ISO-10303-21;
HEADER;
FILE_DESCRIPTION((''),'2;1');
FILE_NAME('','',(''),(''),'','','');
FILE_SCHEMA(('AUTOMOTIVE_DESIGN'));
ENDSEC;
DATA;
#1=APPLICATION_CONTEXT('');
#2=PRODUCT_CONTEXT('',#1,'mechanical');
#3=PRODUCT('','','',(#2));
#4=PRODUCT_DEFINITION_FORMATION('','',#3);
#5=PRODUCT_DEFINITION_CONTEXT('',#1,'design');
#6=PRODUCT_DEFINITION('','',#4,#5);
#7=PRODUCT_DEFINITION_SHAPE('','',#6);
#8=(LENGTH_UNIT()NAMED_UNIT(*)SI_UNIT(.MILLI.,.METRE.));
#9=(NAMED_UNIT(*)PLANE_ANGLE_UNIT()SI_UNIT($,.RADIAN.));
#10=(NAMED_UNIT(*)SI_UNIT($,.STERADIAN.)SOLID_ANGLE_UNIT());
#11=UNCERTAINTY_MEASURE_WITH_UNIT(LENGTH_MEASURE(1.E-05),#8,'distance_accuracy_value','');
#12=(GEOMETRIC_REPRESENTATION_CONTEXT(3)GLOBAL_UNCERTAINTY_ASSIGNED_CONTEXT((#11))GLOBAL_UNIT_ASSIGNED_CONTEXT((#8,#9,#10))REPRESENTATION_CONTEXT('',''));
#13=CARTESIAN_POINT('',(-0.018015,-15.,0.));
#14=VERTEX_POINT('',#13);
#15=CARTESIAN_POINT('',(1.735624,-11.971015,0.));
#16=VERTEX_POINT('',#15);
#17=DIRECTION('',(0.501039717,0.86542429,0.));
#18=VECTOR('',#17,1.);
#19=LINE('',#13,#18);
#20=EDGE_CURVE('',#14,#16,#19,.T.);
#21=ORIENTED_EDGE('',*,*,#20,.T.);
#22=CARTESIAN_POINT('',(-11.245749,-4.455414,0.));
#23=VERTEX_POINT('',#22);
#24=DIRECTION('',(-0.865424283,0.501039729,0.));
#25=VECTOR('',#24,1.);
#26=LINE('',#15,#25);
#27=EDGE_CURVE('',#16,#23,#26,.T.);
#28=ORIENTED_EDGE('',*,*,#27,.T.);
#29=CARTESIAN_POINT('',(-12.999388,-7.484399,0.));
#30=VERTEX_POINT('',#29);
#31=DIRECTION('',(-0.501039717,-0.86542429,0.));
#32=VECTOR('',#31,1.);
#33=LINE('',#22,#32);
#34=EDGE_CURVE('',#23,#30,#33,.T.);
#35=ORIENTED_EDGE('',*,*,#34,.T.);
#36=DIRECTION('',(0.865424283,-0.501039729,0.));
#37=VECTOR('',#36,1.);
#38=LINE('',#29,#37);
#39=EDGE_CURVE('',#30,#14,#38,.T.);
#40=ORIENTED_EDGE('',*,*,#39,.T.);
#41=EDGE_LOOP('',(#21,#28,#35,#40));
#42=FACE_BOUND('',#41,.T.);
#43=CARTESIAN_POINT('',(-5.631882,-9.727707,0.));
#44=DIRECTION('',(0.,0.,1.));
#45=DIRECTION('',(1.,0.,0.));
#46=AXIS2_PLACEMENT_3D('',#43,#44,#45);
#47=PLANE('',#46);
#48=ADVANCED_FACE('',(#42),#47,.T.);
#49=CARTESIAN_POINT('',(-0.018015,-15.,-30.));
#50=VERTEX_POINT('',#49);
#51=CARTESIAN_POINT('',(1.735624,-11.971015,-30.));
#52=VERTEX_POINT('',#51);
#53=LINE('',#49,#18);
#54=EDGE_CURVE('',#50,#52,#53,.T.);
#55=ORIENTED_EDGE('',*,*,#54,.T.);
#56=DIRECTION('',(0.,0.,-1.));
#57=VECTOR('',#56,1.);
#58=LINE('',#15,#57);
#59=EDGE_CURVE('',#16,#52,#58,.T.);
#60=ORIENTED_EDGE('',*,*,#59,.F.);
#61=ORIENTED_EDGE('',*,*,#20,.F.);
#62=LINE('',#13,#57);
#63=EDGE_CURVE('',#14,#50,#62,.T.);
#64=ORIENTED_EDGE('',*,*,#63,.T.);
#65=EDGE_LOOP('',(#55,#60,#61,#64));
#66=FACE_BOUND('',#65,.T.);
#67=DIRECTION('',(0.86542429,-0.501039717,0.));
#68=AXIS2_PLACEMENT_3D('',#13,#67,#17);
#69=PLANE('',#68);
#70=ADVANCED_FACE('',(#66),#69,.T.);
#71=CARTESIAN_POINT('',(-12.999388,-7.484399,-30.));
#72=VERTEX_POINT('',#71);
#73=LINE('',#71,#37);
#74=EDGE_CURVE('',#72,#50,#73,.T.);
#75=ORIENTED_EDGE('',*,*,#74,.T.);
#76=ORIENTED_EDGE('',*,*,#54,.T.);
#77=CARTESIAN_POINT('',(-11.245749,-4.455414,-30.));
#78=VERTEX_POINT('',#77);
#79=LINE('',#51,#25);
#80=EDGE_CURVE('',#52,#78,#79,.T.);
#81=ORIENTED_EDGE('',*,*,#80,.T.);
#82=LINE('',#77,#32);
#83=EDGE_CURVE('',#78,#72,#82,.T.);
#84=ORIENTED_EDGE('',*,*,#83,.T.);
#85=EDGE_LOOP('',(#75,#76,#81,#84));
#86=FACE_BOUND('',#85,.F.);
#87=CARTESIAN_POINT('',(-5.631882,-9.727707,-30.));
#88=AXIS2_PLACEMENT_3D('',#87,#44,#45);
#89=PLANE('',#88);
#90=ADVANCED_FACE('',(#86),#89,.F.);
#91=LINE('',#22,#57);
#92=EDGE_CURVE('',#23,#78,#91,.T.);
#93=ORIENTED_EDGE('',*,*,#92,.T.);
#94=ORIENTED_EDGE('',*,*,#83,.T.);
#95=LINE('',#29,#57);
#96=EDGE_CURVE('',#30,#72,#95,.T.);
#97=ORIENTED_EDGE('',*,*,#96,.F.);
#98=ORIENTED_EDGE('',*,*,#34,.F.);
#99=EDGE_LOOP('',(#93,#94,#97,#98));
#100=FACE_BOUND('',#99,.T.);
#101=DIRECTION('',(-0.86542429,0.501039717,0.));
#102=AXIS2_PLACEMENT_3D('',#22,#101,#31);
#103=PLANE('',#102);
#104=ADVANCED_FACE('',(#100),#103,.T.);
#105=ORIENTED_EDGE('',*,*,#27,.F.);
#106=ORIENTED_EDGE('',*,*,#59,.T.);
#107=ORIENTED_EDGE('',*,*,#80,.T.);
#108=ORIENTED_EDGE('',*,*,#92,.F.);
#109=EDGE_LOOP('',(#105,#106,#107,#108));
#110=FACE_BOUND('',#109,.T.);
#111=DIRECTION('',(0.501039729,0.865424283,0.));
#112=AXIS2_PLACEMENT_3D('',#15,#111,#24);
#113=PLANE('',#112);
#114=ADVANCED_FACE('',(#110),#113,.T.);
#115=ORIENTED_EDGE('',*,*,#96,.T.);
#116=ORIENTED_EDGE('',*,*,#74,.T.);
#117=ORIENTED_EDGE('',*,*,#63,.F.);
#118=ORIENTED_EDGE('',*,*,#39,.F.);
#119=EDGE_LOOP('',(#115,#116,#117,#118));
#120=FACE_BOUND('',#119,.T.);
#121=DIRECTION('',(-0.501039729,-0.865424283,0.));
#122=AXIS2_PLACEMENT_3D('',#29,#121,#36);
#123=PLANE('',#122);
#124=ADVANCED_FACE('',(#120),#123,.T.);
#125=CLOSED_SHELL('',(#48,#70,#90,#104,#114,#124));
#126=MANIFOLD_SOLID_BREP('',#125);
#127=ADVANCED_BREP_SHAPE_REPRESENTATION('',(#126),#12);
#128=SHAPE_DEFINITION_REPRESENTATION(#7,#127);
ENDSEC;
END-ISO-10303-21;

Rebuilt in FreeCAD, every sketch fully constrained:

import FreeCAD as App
import Part
import Sketcher


def add_polygon(sketch, points):
    """Adds a closed chain of lines whose ends are joined by coincident constraints."""
    first, n = sketch.GeometryCount, len(points)
    for a, b in zip(points, points[1:] + points[:1]):
        sketch.addGeometry(Part.LineSegment(App.Vector(*a, 0), App.Vector(*b, 0)), False)
    for i in range(n):
        sketch.addConstraint(Sketcher.Constraint("Coincident", first + i, 2, first + (i + 1) % n, 1))

doc = App.newDocument("Part")
body = doc.addObject("PartDesign::Body", "Body")

sketch1 = body.newObject("Sketcher::SketchObject", "Sketch")
sketch1.AttachmentSupport = (doc.getObject("XY_Plane"), [""])
sketch1.MapMode = "FlatFace"
add_polygon(sketch1, [(-13, -7.5), (0, -15), (1.7, -12), (-11.2, -4.5)])
sketch1.addConstraint([
    Sketcher.Constraint("Perpendicular", 0, 1),
    Sketcher.Constraint("Perpendicular", 1, 2),
    Sketcher.Constraint("Perpendicular", 2, 3),
    Sketcher.Constraint("DistanceY", 0, 2, -1, 1, 15.0),
    Sketcher.Constraint("Distance", 1, 3.5),
    Sketcher.Constraint("DistanceY", 3, 2, -1, 1, 7.484399),
    Sketcher.Constraint("Distance", 0, 15.00001),
    Sketcher.Constraint("DistanceX", 2, 2, -1, 1, 11.245749),
])
pad1 = body.newObject("PartDesign::Pad", "Pad")
pad1.Profile = sketch1
pad1.Length = 30
pad1.Reversed = True

doc.recompute()
